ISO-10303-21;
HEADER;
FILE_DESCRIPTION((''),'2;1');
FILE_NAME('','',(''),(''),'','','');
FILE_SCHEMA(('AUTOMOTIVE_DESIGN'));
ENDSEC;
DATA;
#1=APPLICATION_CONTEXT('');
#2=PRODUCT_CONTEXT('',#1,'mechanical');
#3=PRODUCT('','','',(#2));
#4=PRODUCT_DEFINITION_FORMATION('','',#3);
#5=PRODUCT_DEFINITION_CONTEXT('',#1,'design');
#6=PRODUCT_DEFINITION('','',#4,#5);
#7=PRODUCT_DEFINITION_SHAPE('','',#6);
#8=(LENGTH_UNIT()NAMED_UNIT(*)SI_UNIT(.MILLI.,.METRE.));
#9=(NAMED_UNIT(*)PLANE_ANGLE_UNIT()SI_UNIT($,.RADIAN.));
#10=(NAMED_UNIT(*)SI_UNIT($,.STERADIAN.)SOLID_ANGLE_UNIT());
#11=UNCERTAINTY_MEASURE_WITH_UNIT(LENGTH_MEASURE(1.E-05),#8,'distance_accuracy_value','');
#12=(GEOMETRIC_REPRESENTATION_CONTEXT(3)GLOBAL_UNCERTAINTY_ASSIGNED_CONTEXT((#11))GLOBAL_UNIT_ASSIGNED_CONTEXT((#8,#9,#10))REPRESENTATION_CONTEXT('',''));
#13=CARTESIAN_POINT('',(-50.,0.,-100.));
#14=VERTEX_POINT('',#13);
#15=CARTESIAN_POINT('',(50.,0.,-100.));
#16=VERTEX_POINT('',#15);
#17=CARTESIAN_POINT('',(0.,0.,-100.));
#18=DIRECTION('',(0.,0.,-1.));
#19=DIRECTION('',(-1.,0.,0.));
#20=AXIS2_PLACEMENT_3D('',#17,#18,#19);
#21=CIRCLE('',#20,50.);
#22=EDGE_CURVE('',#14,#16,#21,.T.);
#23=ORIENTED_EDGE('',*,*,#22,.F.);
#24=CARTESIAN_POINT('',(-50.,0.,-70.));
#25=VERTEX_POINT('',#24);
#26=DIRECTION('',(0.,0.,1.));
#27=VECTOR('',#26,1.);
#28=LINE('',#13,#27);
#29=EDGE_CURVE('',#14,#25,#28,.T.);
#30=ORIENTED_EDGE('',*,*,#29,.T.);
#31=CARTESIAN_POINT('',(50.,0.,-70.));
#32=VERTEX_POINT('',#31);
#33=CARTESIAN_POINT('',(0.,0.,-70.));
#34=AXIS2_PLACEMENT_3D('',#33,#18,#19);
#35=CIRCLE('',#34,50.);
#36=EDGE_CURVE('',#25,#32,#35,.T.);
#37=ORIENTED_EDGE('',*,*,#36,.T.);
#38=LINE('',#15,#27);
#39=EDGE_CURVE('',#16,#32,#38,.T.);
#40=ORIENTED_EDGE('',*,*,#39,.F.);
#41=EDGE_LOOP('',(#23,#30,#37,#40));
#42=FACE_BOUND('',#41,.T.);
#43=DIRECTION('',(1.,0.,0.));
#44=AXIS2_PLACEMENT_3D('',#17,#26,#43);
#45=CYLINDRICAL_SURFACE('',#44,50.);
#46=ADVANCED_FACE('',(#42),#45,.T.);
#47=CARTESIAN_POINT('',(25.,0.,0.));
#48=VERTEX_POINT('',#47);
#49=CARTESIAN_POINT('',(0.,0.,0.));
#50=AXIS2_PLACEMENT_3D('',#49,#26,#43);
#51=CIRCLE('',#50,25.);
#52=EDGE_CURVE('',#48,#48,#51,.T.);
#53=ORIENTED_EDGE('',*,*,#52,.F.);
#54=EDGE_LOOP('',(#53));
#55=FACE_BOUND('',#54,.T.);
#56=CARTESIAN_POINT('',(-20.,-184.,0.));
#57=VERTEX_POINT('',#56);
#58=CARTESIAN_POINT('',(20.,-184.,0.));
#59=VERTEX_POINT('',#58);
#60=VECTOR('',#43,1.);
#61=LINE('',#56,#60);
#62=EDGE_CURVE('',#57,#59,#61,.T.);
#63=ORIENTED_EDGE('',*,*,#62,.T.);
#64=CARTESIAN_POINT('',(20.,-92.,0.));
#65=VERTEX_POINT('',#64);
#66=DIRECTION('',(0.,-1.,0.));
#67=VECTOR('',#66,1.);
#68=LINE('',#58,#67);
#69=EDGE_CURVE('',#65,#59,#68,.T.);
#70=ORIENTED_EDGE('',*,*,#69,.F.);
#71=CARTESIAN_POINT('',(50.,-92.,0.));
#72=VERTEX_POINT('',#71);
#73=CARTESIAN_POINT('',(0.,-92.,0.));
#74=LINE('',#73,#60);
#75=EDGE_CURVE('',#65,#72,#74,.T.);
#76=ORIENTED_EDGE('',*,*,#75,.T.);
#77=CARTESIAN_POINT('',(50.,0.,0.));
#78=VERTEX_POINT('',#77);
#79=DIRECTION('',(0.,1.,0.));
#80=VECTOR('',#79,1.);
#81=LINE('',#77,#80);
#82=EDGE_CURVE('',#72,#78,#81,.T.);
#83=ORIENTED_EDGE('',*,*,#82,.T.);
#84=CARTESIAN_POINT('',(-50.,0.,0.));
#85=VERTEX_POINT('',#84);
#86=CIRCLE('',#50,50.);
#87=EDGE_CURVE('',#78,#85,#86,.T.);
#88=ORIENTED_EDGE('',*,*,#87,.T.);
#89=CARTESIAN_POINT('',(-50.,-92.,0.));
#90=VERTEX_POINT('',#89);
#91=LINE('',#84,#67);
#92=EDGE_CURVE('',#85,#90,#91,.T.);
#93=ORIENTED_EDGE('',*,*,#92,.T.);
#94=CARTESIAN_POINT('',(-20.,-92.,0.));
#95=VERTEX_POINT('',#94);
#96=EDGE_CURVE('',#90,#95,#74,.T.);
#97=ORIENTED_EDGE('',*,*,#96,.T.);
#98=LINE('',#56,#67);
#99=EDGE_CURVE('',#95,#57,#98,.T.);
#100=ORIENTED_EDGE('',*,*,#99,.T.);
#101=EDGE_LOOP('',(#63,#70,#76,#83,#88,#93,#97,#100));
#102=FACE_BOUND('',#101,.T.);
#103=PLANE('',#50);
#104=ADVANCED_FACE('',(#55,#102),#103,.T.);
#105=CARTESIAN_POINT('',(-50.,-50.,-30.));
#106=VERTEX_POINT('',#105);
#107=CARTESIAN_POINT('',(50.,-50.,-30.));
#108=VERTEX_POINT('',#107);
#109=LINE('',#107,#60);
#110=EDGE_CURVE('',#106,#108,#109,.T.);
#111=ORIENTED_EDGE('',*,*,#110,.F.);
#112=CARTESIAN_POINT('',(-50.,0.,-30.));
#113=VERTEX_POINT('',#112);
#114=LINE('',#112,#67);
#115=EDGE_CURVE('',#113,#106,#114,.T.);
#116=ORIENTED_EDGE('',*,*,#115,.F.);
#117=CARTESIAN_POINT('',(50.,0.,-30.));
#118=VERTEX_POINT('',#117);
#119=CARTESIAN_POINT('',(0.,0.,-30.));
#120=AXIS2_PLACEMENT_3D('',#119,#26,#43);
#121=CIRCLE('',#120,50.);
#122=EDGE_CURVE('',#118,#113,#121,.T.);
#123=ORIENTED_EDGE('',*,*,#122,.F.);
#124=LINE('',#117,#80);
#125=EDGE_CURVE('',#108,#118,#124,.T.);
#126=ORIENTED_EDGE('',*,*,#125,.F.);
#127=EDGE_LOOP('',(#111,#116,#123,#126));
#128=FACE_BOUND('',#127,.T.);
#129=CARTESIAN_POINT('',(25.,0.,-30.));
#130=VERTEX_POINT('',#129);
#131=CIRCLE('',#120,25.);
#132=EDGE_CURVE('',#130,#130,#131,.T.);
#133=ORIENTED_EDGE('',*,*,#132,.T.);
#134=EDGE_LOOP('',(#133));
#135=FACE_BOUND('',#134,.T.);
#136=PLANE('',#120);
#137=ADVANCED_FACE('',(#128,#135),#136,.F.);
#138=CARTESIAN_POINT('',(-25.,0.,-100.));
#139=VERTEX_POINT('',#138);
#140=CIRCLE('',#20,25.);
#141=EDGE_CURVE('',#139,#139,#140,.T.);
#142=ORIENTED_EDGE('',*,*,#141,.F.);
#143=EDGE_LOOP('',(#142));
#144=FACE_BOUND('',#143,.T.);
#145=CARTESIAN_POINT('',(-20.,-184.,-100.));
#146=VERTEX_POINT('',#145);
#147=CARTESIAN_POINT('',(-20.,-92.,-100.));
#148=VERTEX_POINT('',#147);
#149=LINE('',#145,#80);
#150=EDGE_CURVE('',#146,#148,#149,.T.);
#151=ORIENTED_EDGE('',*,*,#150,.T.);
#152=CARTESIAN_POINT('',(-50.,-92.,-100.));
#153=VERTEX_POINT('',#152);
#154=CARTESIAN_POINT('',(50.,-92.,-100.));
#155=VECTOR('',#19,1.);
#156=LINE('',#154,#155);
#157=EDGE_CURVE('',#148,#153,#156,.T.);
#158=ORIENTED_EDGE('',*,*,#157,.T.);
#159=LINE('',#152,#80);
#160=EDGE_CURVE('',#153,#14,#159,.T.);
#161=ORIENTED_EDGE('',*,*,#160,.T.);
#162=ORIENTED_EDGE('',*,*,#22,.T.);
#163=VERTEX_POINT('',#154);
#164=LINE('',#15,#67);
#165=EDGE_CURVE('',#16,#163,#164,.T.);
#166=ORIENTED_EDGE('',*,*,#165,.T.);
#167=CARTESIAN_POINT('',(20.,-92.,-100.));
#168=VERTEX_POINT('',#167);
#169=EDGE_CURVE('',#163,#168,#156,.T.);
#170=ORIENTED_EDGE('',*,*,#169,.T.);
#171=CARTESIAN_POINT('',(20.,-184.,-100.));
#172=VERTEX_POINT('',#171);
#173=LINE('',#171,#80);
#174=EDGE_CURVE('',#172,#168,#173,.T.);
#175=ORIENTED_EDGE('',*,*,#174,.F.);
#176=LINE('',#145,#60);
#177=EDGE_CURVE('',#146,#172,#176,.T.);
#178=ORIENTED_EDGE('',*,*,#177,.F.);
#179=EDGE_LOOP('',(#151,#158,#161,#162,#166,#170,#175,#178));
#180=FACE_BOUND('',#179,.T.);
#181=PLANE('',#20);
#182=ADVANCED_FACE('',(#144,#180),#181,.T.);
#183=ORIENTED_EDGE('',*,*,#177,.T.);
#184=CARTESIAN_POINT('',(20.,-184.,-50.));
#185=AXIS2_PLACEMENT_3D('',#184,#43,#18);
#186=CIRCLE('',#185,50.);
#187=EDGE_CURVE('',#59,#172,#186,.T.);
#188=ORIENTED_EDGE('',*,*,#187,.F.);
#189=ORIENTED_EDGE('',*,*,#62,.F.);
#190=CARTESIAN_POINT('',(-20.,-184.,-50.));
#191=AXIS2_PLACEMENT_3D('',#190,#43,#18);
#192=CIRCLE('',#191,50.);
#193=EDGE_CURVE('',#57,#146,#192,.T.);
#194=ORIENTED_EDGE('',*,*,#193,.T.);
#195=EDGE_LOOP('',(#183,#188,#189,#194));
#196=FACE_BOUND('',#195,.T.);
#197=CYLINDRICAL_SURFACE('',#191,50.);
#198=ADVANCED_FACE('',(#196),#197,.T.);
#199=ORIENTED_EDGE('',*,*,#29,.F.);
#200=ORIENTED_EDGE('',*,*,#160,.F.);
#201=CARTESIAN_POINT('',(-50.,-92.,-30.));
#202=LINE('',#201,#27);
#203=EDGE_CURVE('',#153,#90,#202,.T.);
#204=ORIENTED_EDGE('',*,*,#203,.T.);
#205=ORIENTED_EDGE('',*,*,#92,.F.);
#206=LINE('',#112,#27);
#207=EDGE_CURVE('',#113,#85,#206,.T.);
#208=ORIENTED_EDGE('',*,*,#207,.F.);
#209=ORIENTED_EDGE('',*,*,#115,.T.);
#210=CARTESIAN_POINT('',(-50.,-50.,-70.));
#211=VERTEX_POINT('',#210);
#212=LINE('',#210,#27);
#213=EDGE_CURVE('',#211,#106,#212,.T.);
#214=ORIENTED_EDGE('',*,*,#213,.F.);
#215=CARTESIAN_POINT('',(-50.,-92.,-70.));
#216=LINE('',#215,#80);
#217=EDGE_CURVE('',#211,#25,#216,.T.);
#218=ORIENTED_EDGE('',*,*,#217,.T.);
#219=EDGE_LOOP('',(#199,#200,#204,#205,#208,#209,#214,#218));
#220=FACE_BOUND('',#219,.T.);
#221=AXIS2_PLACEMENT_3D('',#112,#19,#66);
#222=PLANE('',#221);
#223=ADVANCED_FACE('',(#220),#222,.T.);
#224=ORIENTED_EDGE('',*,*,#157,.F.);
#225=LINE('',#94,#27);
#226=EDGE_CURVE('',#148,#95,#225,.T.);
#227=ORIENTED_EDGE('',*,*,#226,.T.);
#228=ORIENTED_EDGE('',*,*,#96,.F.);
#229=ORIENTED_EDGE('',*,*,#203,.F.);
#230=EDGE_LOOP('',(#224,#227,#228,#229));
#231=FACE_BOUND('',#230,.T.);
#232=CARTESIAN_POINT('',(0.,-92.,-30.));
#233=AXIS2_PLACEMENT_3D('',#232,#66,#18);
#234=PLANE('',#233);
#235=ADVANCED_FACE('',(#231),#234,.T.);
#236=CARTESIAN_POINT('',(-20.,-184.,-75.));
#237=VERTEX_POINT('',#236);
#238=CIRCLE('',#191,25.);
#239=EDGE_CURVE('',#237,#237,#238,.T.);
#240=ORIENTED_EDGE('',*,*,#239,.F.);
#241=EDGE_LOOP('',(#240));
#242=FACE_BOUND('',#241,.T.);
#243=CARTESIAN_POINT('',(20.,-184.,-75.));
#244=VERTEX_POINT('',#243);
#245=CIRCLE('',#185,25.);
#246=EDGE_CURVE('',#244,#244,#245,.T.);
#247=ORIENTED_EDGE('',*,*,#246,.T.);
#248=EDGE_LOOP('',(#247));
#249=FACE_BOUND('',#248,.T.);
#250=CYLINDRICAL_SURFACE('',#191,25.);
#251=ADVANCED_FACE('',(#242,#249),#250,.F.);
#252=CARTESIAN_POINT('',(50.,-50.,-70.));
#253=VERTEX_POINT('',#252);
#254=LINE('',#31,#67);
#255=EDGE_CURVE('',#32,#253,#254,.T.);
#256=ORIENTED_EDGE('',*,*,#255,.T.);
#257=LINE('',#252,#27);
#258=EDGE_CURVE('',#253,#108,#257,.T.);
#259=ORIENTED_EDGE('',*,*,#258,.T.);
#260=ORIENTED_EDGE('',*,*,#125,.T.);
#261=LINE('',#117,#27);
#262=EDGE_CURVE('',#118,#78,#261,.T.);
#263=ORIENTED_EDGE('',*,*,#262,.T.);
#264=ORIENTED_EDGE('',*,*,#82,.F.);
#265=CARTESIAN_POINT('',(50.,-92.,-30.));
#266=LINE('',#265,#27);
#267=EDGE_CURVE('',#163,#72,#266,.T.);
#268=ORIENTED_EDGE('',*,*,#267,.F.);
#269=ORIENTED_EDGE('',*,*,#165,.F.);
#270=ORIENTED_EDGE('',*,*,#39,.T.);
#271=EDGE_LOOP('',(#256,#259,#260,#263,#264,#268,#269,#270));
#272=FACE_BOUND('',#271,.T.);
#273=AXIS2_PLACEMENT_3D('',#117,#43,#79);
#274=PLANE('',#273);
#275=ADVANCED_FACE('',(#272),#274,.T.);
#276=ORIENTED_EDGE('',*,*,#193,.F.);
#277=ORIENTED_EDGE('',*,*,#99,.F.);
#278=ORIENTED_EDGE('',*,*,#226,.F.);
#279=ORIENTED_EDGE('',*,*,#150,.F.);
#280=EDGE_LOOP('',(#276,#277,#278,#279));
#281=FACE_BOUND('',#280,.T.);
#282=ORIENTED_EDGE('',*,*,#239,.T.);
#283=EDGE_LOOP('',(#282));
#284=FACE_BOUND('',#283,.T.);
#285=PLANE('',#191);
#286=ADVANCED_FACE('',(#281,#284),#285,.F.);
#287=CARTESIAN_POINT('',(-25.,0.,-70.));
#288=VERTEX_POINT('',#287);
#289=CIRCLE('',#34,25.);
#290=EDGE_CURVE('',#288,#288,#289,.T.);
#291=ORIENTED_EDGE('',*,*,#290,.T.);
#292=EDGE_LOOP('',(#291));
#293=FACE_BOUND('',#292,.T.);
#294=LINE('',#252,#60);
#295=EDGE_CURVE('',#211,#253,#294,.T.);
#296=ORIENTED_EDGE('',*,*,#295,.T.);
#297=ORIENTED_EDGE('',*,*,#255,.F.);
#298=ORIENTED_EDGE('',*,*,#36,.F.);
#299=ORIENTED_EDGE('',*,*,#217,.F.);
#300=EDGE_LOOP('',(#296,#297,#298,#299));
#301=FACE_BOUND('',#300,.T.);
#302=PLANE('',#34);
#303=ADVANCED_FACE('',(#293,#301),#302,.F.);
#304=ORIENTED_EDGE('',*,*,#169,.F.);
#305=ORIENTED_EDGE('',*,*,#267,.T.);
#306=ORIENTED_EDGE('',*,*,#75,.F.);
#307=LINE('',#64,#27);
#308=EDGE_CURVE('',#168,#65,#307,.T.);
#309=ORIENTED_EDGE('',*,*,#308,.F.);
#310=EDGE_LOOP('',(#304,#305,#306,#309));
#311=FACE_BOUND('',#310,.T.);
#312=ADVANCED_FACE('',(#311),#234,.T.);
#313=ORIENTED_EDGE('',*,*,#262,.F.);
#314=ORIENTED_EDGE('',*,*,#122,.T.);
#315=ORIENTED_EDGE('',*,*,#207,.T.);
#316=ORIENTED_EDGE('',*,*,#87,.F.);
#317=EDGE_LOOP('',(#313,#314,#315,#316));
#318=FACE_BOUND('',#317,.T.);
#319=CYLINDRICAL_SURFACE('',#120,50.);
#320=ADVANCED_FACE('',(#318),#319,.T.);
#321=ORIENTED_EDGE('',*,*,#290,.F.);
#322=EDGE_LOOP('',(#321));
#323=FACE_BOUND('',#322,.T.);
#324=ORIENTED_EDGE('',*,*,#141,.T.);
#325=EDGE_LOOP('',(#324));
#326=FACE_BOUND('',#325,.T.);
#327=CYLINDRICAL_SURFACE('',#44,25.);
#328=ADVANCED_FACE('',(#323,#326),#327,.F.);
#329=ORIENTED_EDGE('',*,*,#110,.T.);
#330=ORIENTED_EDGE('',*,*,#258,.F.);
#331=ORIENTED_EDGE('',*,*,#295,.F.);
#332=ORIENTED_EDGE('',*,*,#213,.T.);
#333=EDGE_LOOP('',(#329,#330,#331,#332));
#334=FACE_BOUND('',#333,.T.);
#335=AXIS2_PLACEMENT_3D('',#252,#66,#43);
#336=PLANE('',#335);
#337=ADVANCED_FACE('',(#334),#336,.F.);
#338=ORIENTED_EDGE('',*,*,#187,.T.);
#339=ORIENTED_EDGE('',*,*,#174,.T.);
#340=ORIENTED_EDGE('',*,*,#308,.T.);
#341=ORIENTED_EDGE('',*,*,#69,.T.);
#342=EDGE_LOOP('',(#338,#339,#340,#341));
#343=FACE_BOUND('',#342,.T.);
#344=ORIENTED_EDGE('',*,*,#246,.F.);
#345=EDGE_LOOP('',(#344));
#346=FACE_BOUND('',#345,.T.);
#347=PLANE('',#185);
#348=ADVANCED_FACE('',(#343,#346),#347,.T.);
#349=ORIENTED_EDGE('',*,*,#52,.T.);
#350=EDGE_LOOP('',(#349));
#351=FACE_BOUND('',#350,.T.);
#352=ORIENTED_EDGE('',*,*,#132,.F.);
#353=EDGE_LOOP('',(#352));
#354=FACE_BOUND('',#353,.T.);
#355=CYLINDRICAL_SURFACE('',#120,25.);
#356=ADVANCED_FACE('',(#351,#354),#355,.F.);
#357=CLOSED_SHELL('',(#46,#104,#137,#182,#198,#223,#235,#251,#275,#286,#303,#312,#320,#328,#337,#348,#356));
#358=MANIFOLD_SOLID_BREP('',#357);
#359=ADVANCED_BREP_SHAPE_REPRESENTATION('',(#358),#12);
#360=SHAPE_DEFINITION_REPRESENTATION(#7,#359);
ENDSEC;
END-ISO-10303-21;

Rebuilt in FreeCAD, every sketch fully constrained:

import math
import FreeCAD as App
import Part
import Sketcher
from FreeCAD import Vector
Q = App.Units.Quantity

doc = App.newDocument("Part")
body = doc.addObject("PartDesign::Body", "Body")

# Sketch on XY plane
sketch1 = doc.addObject("Sketcher::SketchObject", "Sketch")
body.addObject(sketch1)
sketch1.AttachmentSupport = (doc.XY_Plane, [""])
sketch1.MapMode = "FlatFace"
sketch1.addGeometry([
    Part.ArcOfCircle(Part.Circle(Vector(0, 0, 0), Vector(0, 0, 1), 50), math.radians(0), math.radians(180)),  # 0
    Part.LineSegment(Vector(-50, 0, 0), Vector(-50, -92, 0)),  # 1
    Part.LineSegment(Vector(-50, -92, 0), Vector(50, -92, 0)),  # 2
    Part.LineSegment(Vector(50, -92, 0), Vector(50, 0, 0)),  # 3
    Part.Circle(Vector(0, 0, 0), Vector(0, 0, 1), 25),  # 4
], False)
sketch1.addConstraint([
    Sketcher.Constraint("Tangent", 0, 2, 1, 1),
    Sketcher.Constraint("Coincident", 1, 2, 2, 1),
    Sketcher.Constraint("Coincident", 2, 2, 3, 1),
    Sketcher.Constraint("Tangent", 3, 2, 0, 1),
    Sketcher.Constraint("Vertical", 1),
    Sketcher.Constraint("Horizontal", 2),
    Sketcher.Constraint("Vertical", 3),
    Sketcher.Constraint("Coincident", 0, 3, -1, 1),
    Sketcher.Constraint("Coincident", 4, 3, -1, 1),
    Sketcher.Constraint("Diameter", 4, Q("50 mm")),
    Sketcher.Constraint("Radius", 0, Q("50 mm")),
    Sketcher.Constraint("DistanceY", 1, 2, 1, 1, Q("92 mm")),
])
pad1 = doc.addObject("PartDesign::Pad", "Pad")
body.addObject(pad1)
pad1.Profile = sketch1
pad1.Length = 30
pad1.Reversed = True

# Sketch on XY plane
sketch2 = doc.addObject("Sketcher::SketchObject", "Sketch001")
body.addObject(sketch2)
sketch2.AttachmentSupport = (doc.XY_Plane, [""])
sketch2.MapMode = "FlatFace"
sketch2.AttachmentOffset = App.Placement(Vector(0, 0, -30), App.Rotation())
sketch2.addGeometry([
    Part.LineSegment(Vector(50, -50, 0), Vector(50, -92, 0)),
    Part.LineSegment(Vector(50, -92, 0), Vector(-50, -92, 0)),
    Part.LineSegment(Vector(-50, -92, 0), Vector(-50, -50, 0)),
    Part.LineSegment(Vector(-50, -50, 0), Vector(50, -50, 0)),
], False)
sketch2.addConstraint([
    Sketcher.Constraint("Coincident", 0, 2, 1, 1),
    Sketcher.Constraint("Coincident", 1, 2, 2, 1),
    Sketcher.Constraint("Coincident", 2, 2, 3, 1),
    Sketcher.Constraint("Coincident", 3, 2, 0, 1),
    Sketcher.Constraint("Vertical", 0),
    Sketcher.Constraint("Horizontal", 1),
    Sketcher.Constraint("Vertical", 2),
    Sketcher.Constraint("Horizontal", 3),
    Sketcher.Constraint("DistanceX", 1, 2, 1, 1, Q("100 mm")),
    Sketcher.Constraint("DistanceY", 0, 2, 0, 1, Q("42 mm")),
    Sketcher.Constraint("DistanceX", -1, 1, 0, 2, Q("50 mm")),
    Sketcher.Constraint("DistanceY", 0, 2, -1, 1, Q("92 mm")),
])
pad2 = doc.addObject("PartDesign::Pad", "Pad001")
body.addObject(pad2)
pad2.Profile = sketch2
pad2.Length = 40
pad2.Reversed = True

# Sketch on XY plane
sketch3 = doc.addObject("Sketcher::SketchObject", "Sketch002")
body.addObject(sketch3)
sketch3.AttachmentSupport = (doc.XY_Plane, [""])
sketch3.MapMode = "FlatFace"
sketch3.AttachmentOffset = App.Placement(Vector(0, 0, -70), App.Rotation())
sketch3.addGeometry([
    Part.LineSegment(Vector(50, 0, 0), Vector(50, -92, 0)),  # 0
    Part.LineSegment(Vector(50, -92, 0), Vector(-50, -92, 0)),  # 1
    Part.LineSegment(Vector(-50, -92, 0), Vector(-50, 0, 0)),  # 2
    Part.ArcOfCircle(Part.Circle(Vector(0, 0, 0), Vector(0, 0, 1), 50), math.radians(0), math.radians(180)),  # 3
    Part.Circle(Vector(0, 0, 0), Vector(0, 0, 1), 25),  # 4
], False)
sketch3.addConstraint([
    Sketcher.Constraint("Coincident", 0, 2, 1, 1),
    Sketcher.Constraint("Coincident", 1, 2, 2, 1),
    Sketcher.Constraint("Tangent", 2, 2, 3, 2),
    Sketcher.Constraint("Tangent", 3, 1, 0, 1),
    Sketcher.Constraint("Vertical", 0),
    Sketcher.Constraint("Horizontal", 1),
    Sketcher.Constraint("Vertical", 2),
    Sketcher.Constraint("Coincident", 3, 3, -1, 1),
    Sketcher.Constraint("Coincident", 4, 3, -1, 1),
    Sketcher.Constraint("Diameter", 4, Q("50 mm")),
    Sketcher.Constraint("Radius", 3, Q("50 mm")),
    Sketcher.Constraint("DistanceY", 0, 2, 0, 1, Q("92 mm")),
])
pad3 = doc.addObject("PartDesign::Pad", "Pad002")
body.addObject(pad3)
pad3.Profile = sketch3
pad3.Length = 30
pad3.Reversed = True

# Sketch on YZ plane
sketch4 = doc.addObject("Sketcher::SketchObject", "Sketch003")
body.addObject(sketch4)
sketch4.AttachmentSupport = (doc.YZ_Plane, [""])
sketch4.MapMode = "FlatFace"
sketch4.addGeometry([
    Part.LineSegment(Vector(-92, 0, 0), Vector(-184, 0, 0)),  # 0
    Part.ArcOfCircle(Part.Circle(Vector(-184, -50, 0), Vector(0, 0, 1), 50), math.radians(90), math.radians(270)),  # 1
    Part.LineSegment(Vector(-184, -100, 0), Vector(-92, -100, 0)),  # 2
    Part.LineSegment(Vector(-92, -100, 0), Vector(-92, 0, 0)),  # 3
    Part.Circle(Vector(-184, -50, 0), Vector(0, 0, 1), 25),  # 4
], False)
sketch4.addConstraint([
    Sketcher.Constraint("Tangent", 0, 2, 1, 1),
    Sketcher.Constraint("Tangent", 1, 2, 2, 1),
    Sketcher.Constraint("Coincident", 2, 2, 3, 1),
    Sketcher.Constraint("Coincident", 3, 2, 0, 1),
    Sketcher.Constraint("Horizontal", 0),
    Sketcher.Constraint("Horizontal", 2),
    Sketcher.Constraint("Vertical", 3),
    Sketcher.Constraint("Coincident", 4, 3, 1, 3),
    Sketcher.Constraint("PointOnObject", 0, 2, -1),
    Sketcher.Constraint("Diameter", 4, Q("50 mm")),
    Sketcher.Constraint("Radius", 1, Q("50 mm")),
    Sketcher.Constraint("DistanceX", 0, 2, 0, 1, Q("92 mm")),
    Sketcher.Constraint("DistanceX", 1, 3, -1, 1, Q("184 mm")),
])
pad4 = doc.addObject("PartDesign::Pad", "Pad003")
body.addObject(pad4)
pad4.Profile = sketch4
pad4.Type = "TwoLengths"
pad4.Length = 20
pad4.Length2 = 20

doc.recompute()
